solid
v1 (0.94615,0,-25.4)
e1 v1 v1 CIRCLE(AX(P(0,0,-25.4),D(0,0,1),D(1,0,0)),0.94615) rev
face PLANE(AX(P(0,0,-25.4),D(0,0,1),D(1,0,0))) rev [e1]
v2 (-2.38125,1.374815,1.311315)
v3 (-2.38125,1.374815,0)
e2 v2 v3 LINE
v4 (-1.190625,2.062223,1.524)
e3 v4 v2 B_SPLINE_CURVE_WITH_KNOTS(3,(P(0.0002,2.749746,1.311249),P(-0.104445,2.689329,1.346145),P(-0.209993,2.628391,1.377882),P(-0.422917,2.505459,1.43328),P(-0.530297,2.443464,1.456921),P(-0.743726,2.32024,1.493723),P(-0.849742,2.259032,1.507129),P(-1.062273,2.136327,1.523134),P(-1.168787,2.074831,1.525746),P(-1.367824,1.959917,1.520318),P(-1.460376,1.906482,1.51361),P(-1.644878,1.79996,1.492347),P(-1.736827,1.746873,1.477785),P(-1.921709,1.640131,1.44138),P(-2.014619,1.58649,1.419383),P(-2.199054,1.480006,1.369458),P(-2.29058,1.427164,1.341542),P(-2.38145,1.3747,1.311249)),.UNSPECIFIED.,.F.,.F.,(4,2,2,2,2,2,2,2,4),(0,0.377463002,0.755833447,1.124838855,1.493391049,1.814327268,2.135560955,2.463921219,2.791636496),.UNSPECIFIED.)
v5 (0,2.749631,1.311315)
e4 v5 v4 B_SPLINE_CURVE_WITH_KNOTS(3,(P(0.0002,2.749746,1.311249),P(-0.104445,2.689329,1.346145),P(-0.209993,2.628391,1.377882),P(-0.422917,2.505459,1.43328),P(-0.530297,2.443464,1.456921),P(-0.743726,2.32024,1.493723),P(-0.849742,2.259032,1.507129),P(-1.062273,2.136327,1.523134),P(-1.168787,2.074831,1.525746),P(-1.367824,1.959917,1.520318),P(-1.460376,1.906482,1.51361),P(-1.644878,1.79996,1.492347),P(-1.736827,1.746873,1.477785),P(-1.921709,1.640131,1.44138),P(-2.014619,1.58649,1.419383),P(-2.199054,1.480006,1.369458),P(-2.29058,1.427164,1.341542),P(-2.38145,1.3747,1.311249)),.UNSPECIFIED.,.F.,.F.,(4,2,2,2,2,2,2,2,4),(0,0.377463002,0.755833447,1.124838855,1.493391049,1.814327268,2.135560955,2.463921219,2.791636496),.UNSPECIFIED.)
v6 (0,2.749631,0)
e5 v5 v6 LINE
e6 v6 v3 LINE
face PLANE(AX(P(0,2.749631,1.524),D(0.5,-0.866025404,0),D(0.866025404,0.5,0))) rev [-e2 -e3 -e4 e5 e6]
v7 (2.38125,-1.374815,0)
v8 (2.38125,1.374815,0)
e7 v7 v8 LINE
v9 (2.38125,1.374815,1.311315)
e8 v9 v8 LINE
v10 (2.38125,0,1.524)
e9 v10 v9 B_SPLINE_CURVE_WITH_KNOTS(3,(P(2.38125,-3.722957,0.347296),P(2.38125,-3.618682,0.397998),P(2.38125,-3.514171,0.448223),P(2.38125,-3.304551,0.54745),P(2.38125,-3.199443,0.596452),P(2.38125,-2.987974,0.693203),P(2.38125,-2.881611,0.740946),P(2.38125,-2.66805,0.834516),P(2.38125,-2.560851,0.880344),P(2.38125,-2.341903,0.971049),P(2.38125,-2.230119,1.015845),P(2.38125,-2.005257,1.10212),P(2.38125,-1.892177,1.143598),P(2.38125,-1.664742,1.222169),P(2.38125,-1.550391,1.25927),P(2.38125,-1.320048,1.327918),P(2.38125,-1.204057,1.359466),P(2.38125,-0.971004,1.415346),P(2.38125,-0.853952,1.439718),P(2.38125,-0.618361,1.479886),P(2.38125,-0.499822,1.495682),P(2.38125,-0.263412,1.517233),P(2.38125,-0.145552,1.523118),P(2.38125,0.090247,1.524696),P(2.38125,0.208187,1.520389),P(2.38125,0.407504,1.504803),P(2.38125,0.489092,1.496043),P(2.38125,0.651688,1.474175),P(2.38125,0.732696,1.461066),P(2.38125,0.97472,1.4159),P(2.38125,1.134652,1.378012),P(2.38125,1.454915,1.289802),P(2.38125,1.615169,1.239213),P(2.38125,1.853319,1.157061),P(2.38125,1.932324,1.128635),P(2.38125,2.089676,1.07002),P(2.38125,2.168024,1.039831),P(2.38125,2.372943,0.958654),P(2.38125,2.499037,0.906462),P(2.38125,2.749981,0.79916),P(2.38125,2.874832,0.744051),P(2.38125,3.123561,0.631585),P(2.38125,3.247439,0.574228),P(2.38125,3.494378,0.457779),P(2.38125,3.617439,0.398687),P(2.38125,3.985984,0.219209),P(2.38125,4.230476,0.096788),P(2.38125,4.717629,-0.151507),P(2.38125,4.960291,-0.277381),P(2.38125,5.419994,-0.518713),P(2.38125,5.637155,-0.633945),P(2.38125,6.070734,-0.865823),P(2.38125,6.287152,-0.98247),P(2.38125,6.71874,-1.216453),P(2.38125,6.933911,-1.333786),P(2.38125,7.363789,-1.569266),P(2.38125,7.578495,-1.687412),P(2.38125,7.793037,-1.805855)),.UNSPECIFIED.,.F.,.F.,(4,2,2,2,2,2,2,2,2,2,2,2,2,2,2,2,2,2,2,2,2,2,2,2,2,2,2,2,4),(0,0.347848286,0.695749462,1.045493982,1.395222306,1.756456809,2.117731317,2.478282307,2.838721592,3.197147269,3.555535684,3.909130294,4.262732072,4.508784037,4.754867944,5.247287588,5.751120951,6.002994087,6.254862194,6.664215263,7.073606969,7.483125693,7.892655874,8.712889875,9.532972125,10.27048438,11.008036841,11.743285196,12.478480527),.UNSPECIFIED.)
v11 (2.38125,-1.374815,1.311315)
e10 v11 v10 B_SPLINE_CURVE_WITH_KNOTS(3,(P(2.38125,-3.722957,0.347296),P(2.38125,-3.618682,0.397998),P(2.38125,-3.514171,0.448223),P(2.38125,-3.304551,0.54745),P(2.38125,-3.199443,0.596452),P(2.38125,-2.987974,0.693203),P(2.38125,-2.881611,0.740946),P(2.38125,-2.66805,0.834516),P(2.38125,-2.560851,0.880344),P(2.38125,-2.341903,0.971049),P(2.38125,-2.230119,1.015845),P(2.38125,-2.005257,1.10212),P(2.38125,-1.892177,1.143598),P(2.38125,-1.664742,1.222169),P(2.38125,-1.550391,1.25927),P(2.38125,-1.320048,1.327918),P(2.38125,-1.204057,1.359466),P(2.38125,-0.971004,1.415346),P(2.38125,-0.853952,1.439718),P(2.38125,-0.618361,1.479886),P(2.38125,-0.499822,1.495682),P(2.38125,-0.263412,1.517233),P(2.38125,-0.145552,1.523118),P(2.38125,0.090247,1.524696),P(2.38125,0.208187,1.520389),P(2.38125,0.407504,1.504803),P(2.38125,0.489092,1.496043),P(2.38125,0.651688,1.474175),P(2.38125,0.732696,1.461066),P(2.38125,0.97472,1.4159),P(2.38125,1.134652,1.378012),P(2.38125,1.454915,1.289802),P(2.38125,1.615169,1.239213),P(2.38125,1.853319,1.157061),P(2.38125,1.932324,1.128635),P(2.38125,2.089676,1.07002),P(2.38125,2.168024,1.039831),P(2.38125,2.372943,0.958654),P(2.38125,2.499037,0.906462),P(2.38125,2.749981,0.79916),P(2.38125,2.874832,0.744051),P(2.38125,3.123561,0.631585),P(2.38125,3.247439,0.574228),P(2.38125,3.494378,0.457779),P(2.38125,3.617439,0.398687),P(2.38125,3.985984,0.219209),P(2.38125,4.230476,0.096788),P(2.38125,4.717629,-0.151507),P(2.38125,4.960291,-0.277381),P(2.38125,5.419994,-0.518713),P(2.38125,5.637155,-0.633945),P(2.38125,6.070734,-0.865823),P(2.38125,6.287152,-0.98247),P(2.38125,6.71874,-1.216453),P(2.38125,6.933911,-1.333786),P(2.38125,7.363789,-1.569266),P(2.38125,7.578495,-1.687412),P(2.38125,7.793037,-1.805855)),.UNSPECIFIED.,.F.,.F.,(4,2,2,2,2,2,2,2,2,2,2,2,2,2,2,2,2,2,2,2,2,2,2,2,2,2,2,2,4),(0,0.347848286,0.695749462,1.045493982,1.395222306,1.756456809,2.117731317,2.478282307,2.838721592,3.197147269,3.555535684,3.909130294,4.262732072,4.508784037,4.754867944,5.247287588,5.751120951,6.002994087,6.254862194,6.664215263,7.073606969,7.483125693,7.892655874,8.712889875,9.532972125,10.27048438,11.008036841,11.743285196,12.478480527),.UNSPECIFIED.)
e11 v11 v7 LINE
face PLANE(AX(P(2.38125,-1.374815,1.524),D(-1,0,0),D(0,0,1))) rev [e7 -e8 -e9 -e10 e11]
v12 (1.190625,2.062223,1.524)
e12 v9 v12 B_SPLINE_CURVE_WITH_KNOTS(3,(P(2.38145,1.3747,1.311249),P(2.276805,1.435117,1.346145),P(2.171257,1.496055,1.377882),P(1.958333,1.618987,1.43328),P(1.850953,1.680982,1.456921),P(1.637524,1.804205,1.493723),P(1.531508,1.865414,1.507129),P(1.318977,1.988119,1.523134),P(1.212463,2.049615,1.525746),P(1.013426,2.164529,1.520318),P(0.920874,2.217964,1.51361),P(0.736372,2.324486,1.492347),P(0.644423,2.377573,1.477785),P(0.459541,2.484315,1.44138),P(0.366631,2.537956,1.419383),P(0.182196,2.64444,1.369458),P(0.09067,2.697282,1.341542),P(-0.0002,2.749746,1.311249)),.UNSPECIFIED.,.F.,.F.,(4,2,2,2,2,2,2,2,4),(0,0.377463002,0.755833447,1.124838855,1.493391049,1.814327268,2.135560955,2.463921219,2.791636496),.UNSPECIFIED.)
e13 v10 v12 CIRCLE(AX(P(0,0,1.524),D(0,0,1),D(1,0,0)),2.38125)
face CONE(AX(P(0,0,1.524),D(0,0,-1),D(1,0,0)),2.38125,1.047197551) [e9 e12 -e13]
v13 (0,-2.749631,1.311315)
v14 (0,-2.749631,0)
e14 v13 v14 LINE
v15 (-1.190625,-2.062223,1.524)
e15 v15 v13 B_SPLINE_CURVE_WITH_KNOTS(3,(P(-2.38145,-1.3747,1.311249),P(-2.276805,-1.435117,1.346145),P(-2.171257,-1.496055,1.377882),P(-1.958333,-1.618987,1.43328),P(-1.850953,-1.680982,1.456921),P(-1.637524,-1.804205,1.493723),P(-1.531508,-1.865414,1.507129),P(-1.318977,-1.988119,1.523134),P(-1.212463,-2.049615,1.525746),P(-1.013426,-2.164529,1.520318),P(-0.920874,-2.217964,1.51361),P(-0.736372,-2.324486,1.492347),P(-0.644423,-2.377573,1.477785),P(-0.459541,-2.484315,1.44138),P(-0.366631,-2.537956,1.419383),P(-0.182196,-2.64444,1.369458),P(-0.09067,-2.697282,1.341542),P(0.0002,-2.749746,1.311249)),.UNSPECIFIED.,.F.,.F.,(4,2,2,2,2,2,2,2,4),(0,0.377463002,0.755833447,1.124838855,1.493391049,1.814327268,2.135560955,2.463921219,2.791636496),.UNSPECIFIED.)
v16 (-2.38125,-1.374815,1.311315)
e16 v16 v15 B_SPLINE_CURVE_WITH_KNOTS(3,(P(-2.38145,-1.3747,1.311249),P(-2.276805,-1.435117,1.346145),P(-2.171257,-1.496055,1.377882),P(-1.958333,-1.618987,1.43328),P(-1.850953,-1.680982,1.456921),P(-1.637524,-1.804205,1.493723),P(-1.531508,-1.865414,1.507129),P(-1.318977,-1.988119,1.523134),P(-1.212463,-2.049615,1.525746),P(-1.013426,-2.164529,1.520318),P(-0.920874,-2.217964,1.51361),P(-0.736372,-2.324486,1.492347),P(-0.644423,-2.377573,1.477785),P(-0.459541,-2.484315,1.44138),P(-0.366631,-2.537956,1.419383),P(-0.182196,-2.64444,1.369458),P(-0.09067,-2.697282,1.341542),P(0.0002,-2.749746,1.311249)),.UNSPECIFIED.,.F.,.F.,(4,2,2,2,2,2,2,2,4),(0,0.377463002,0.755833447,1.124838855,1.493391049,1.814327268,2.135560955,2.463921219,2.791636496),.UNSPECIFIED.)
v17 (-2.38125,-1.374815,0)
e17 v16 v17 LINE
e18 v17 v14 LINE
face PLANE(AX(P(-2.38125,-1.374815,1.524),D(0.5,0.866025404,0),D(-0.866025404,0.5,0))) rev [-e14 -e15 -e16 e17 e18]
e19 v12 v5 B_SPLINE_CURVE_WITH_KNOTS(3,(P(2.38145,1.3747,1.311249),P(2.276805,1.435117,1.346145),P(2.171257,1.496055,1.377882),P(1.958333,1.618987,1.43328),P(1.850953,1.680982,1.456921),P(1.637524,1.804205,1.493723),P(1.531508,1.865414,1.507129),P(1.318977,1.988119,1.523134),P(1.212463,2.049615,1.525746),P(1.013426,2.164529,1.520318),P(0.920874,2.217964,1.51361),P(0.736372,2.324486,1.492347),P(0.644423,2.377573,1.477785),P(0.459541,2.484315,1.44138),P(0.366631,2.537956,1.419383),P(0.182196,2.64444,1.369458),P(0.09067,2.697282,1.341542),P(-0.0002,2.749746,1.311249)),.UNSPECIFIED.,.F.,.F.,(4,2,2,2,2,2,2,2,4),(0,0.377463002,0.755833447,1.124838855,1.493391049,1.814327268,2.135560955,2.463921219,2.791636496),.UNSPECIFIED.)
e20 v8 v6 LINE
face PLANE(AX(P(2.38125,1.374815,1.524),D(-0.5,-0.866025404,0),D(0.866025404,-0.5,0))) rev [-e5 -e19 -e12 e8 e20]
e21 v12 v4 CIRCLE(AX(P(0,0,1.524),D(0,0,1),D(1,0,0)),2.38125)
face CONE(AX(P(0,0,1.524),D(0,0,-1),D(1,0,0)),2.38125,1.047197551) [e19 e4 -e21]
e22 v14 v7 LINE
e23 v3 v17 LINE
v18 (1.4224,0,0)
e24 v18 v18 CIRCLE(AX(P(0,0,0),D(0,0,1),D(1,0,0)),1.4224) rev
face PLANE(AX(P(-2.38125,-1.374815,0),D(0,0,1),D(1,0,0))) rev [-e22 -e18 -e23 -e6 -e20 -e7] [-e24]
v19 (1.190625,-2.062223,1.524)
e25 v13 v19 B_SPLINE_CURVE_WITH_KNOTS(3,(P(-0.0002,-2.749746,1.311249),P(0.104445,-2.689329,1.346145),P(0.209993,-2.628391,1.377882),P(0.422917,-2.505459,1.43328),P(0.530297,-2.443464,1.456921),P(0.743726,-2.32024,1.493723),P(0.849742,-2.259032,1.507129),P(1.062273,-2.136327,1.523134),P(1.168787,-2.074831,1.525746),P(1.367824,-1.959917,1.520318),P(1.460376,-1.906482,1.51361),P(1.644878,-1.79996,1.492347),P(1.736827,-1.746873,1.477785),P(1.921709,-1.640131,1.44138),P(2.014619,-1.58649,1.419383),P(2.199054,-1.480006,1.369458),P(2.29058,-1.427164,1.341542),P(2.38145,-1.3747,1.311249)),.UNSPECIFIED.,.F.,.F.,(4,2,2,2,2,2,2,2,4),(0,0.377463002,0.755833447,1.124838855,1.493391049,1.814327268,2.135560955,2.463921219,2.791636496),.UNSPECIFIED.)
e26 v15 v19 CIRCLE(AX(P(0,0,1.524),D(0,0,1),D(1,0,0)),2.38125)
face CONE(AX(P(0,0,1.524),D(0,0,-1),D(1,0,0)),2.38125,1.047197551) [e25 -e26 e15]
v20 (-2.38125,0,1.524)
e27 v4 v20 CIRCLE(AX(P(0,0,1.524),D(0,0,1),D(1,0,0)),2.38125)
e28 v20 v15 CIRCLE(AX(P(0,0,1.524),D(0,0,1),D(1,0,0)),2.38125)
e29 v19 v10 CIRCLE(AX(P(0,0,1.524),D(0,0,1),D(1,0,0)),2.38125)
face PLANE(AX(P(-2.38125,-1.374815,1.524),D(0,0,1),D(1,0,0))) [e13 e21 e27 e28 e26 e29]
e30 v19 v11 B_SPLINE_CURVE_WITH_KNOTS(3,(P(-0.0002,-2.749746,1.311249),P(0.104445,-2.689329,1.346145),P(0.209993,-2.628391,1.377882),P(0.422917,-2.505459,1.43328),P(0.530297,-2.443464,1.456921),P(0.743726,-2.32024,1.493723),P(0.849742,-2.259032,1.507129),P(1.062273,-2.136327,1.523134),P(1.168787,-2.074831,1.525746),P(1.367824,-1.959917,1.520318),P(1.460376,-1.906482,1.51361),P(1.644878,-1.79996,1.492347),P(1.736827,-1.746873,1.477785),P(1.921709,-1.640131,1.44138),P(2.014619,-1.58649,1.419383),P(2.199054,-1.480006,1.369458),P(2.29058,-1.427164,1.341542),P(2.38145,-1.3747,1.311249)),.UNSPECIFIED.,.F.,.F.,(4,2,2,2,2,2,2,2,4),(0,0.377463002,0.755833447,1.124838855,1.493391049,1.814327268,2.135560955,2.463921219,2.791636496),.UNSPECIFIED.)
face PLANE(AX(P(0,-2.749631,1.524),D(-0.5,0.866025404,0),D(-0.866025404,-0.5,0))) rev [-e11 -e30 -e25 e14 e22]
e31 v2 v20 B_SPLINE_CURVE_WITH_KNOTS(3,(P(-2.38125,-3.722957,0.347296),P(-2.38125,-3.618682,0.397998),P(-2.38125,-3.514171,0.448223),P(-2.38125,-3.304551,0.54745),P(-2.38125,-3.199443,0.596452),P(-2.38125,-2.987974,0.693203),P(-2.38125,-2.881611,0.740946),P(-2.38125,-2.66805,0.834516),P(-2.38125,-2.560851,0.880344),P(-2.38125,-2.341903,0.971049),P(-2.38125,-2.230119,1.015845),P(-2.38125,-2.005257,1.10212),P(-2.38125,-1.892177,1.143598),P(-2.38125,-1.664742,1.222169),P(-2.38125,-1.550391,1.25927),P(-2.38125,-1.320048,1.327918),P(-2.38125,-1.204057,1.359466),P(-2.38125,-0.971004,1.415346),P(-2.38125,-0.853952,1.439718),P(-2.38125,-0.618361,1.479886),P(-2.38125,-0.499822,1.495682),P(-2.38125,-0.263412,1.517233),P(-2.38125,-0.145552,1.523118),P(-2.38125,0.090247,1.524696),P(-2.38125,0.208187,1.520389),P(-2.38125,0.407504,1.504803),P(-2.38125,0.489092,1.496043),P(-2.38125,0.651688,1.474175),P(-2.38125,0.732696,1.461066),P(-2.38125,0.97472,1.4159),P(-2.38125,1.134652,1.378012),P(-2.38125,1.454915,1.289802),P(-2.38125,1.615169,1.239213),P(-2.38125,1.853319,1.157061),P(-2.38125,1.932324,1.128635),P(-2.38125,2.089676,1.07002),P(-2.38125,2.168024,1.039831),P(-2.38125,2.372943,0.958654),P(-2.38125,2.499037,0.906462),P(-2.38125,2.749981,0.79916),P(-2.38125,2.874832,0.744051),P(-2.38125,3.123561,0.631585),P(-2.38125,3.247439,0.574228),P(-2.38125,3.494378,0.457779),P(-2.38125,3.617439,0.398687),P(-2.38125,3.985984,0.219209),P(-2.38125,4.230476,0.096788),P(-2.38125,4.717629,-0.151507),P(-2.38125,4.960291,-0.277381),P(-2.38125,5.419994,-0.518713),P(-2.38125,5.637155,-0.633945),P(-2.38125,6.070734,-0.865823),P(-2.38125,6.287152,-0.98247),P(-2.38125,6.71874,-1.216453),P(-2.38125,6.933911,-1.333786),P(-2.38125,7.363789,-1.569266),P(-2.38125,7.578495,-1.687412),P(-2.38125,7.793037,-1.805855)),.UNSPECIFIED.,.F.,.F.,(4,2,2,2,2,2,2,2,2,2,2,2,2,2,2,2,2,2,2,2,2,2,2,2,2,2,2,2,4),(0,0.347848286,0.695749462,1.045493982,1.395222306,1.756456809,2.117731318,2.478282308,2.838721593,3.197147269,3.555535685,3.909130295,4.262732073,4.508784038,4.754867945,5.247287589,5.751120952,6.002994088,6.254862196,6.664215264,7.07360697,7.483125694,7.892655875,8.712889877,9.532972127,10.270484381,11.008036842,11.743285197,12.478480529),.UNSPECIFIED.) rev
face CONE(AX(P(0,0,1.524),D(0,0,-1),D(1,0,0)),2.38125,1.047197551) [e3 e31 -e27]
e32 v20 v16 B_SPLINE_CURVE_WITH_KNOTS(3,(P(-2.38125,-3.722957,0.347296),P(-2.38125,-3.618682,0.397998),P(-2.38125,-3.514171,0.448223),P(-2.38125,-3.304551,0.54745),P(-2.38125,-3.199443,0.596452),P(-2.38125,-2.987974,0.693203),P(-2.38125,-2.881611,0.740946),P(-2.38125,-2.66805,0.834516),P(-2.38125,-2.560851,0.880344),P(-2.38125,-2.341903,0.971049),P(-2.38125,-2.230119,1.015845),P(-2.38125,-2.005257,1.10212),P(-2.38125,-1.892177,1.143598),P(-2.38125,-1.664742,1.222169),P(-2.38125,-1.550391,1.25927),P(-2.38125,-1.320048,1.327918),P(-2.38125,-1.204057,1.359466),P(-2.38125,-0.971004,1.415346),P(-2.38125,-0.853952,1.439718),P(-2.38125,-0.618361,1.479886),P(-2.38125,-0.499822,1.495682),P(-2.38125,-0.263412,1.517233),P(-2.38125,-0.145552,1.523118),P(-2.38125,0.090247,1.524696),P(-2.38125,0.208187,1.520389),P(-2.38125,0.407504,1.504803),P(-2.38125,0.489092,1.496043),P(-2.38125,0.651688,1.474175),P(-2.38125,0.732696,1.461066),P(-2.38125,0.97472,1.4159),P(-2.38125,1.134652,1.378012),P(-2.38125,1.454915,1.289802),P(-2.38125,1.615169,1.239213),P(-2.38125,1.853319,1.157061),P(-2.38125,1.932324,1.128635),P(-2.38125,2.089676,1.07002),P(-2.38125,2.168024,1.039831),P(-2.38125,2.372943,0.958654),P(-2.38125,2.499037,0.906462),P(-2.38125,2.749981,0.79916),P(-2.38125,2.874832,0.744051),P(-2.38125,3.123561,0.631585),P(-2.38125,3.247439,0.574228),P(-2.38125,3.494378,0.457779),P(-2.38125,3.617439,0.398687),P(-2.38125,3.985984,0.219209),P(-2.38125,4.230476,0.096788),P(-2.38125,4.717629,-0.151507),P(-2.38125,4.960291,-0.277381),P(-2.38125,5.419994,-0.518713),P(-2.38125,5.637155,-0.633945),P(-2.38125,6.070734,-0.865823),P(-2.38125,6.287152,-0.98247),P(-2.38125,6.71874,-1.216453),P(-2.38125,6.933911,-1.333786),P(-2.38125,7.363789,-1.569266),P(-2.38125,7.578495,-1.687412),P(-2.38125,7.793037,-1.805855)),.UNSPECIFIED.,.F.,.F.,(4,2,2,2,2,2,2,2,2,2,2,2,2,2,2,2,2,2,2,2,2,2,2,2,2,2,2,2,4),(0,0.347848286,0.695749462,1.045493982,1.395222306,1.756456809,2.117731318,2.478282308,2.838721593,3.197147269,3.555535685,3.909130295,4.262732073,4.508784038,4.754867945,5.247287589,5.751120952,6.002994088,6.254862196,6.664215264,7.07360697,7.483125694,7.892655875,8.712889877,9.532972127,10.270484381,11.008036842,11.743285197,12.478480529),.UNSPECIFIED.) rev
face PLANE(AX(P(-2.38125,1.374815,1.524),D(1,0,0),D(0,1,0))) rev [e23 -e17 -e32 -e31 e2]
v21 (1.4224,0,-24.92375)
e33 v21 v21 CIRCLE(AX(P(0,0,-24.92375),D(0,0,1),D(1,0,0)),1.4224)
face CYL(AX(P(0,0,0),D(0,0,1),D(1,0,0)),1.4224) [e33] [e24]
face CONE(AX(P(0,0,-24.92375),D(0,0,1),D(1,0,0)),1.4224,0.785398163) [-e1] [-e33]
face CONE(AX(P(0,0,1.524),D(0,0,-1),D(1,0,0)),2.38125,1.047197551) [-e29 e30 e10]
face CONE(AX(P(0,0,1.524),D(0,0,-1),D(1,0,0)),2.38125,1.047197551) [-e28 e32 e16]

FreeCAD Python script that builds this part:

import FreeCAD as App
import Part
import Sketcher

V = App.Vector
Q = App.Units.Quantity


def edges_at(feature, points):
    """Names of the edges that pass closest to the given points."""
    edges = feature.Shape.Edges
    near = lambda p: min(range(len(edges)), key=lambda i: edges[i].distToShape(Part.Vertex(*p))[0])
    return sorted({f"Edge{near(p) + 1}" for p in points})


def faces_at(feature, points):
    """Names of the faces that lie closest to the given points."""
    faces = feature.Shape.Faces
    near = lambda p: min(range(len(faces)), key=lambda i: faces[i].distToShape(Part.Vertex(*p))[0])
    return sorted({f"Face{near(p) + 1}" for p in points})


def add_polygon(sketch, points):
    """Adds a closed chain of lines whose ends are joined by coincident constraints."""
    first, n = sketch.GeometryCount, len(points)
    for a, b in zip(points, points[1:] + points[:1]):
        sketch.addGeometry(Part.LineSegment(App.Vector(*a, 0), App.Vector(*b, 0)), False)
    for i in range(n):
        sketch.addConstraint(Sketcher.Constraint("Coincident", first + i, 2, first + (i + 1) % n, 1))

doc = App.newDocument("Part")
body = doc.addObject("PartDesign::Body", "Body")

sketch1 = body.newObject("Sketcher::SketchObject", "Sketch")
sketch1.AttachmentSupport = (doc.getObject("XY_Plane"), [""])
sketch1.MapMode = "FlatFace"
add_polygon(sketch1, [(-2.4, -1.4), (0, -2.7), (2.4, -1.4), (2.4, 1.4), (0, 2.7), (-2.4, 1.4)])
sketch1.addConstraint(Sketcher.Constraint("Vertical", 2))
sketch1.addConstraint(Sketcher.Constraint("Vertical", 5))
sketch1.addConstraint(Sketcher.Constraint("Symmetric", 0, 2, 3, 2, -1, 1))
sketch1.addConstraint(Sketcher.Constraint("Symmetric", 1, 2, 4, 2, -1, 1))
sketch1.addConstraint(Sketcher.Constraint("PointOnObject", 0, 2, -2))
sketch1.addConstraint(Sketcher.Constraint("Parallel", 0, 3))
sketch1.addConstraint(Sketcher.Constraint("Horizontal", 2, 2, 4, 2))
sketch1.addConstraint(Sketcher.Constraint("Angle", 0, Q("-30 deg")))
sketch1.addConstraint(Sketcher.Constraint("DistanceX", -1, 1, 1, 2, Q("0.09375 in")))
sketch1.addConstraint(Sketcher.Constraint("DistanceY", 2, 1, 2, 2, Q("2.749631 mm")))
pad1 = body.newObject("PartDesign::Pad", "Pad")
pad1.Profile = sketch1
pad1.Length = Q("0.06 in")
body2 = doc.addObject("PartDesign::Body", "Body001")

sketch2 = body2.newObject("Sketcher::SketchObject", "Sketch001")
sketch2.AttachmentSupport = (doc.getObject("YZ_Plane001"), [""])
sketch2.MapMode = "FlatFace"
add_polygon(sketch2, [(1.4, 0), (0, 0), (0, -25.4), (1.4, -25.4)])
sketch2.addConstraint(Sketcher.Constraint("Horizontal", 0))
sketch2.addConstraint(Sketcher.Constraint("Vertical", 1))
sketch2.addConstraint(Sketcher.Constraint("Horizontal", 2))
sketch2.addConstraint(Sketcher.Constraint("Vertical", 3))
sketch2.addConstraint(Sketcher.Constraint("Coincident", 0, 2, -1, 1))
sketch2.addConstraint(Sketcher.Constraint("DistanceY", 1, 2, 1, 1, Q("1 in")))
sketch2.addConstraint(Sketcher.Constraint("DistanceX", 0, 2, 0, 1, Q("0.056 in")))
revolution = body2.newObject("PartDesign::Revolution", "Revolution")
revolution.Profile = sketch2
revolution.ReferenceAxis = (sketch2, ["V_Axis"])
revolution.Angle = 360
doc.recompute()

chamfer = body2.newObject("PartDesign::Chamfer", "Chamfer")
chamfer.Base = (revolution, edges_at(revolution, [(-1.422, 0, -25.4)]))
chamfer.Size = 0.47625
doc.recompute()

boolean = body.newObject("PartDesign::Boolean", "Boolean")
boolean.Type = "Fuse"
boolean.addObjects([body2])

sketch3 = body.newObject("Sketcher::SketchObject", "Sketch002")
sketch3.AttachmentSupport = (doc.getObject("XY_Plane"), [""])
sketch3.MapMode = "FlatFace"
sketch3.addGeometry(Part.Circle(V(0, 0, 0), V(0, 0, 1), 0.5), False)
sketch3.addConstraint(Sketcher.Constraint("Coincident", 0, 3, -1, 1))
sketch3.addConstraint(Sketcher.Constraint("Diameter", 0, Q("0.043 in")))
pad2 = body.newObject("PartDesign::Pad", "Pad001")
pad2.Profile = sketch3
pad2.Length = Q("0.06 in")
body3 = doc.addObject("PartDesign::Body", "Body002")

sketch4 = body3.newObject("Sketcher::SketchObject", "Sketch003")
sketch4.AttachmentSupport = (doc.getObject("XY_Plane002"), [""])
sketch4.MapMode = "FlatFace"
sketch4.AttachmentOffset = App.Placement(V(0, 0, 0.06 * 25.4), App.Rotation())
add_polygon(sketch4, [(-10.6, 10.9), (-10.6, -10.9), (10.6, -10.9), (10.6, 10.9)])
sketch4.addGeometry(Part.Circle(V(0, 0, 0), V(0, 0, 1), 2.4), False)
sketch4.addConstraint(Sketcher.Constraint("Vertical", 0))
sketch4.addConstraint(Sketcher.Constraint("Horizontal", 1))
sketch4.addConstraint(Sketcher.Constraint("Vertical", 2))
sketch4.addConstraint(Sketcher.Constraint("Horizontal", 3))
sketch4.addConstraint(Sketcher.Constraint("Coincident", 4, 3, -1, 1))
sketch4.addConstraint(Sketcher.Constraint("Symmetric", 0, 2, 2, 2, -1, 1))
sketch4.addConstraint(Sketcher.Constraint("Diameter", 4, Q("0.1875 in")))
sketch4.addConstraint(Sketcher.Constraint("DistanceX", 1, 1, 1, 2, Q("21.138 mm")))
sketch4.addConstraint(Sketcher.Constraint("DistanceY", 0, 2, 0, 1, Q("21.876 mm")))
pad3 = body3.newObject("PartDesign::Pad", "Pad002")
pad3.Profile = sketch4
pad3.Length = Q("0.1 in")
pad3.Reversed = True
doc.recompute()

datumplane = body3.newObject("PartDesign::Plane", "DatumPlane")
datumplane.AttachmentSupport = (doc.getObject("XY_Plane002"), [""])
datumplane.MapMode = "FlatFace"
datumplane.AttachmentOffset = App.Placement(V(0, 0, 0.06 * 25.4), App.Rotation())
draft = body3.newObject("PartDesign::Draft", "Draft")
draft.Base = (pad3, faces_at(pad3, [
    (0, -10.938, 0.254),
    (10.569, 0, 0.254),
    (0, 10.938, 0.254),
    (-10.569, 0, 0.254),
    (-2.381, 0, 0.254),
]))
draft.NeutralPlane = (datumplane, [""])
draft.Angle = 60
draft.Reversed = True
doc.recompute()

boolean2 = body.newObject("PartDesign::Boolean", "Boolean001")
boolean2.Type = "Cut"
boolean2.addObjects([body3])

doc.recompute()
